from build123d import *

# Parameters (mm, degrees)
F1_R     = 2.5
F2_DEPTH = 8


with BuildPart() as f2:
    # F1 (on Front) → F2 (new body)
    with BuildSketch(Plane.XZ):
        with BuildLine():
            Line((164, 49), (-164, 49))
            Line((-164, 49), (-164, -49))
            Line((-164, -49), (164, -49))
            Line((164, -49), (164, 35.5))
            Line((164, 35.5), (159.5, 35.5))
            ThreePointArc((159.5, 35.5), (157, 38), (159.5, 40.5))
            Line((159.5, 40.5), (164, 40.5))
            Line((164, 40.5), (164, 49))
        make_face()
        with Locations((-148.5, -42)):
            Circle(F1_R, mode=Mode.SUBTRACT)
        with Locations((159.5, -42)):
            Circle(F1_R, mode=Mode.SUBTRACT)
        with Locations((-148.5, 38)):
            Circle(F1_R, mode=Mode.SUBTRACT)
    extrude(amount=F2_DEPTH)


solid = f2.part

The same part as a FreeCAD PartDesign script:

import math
import FreeCAD as App
import Part
import Sketcher

V = App.Vector

doc = App.newDocument("Part")
params = doc.addObject("Spreadsheet::Sheet", "Params")
for row, (alias, value) in enumerate([
    ("sketch1_diameter", "5 mm"),
    ("sketch1_width", "328 mm"),
    ("sketch1_height", "98 mm"),
    ("sketch1_width2", "4.5 mm"),
    ("sketch1_height2", "84.5 mm"),
    ("pad1_length", "8 mm"),
], start=1):
    params.set(f"A{row}", alias)
    params.set(f"B{row}", "=" + value)
    params.setAlias(f"B{row}", alias)

body = doc.addObject("PartDesign::Body", "Body")

# Sketch on XZ plane
sketch1 = doc.addObject("Sketcher::SketchObject", "Sketch")
body.addObject(sketch1)
sketch1.AttachmentSupport = (doc.XZ_Plane, [""])
sketch1.MapMode = "FlatFace"
sketch1.addGeometry(Part.LineSegment(V(164, 49, 0), V(-164, 49, 0)), False)
sketch1.addGeometry(Part.LineSegment(V(-164, 49, 0), V(-164, -49, 0)), False)
sketch1.addGeometry(Part.LineSegment(V(-164, -49, 0), V(164, -49, 0)), False)
sketch1.addGeometry(Part.LineSegment(V(164, -49, 0), V(164, 35.5, 0)), False)
sketch1.addGeometry(Part.LineSegment(V(164, 35.5, 0), V(159.5, 35.5, 0)), False)
sketch1.addGeometry(Part.ArcOfCircle(Part.Circle(V(159.5, 38, 0), V(0, 0, 1), 2.5), math.radians(90), math.radians(270)), False)
sketch1.addGeometry(Part.LineSegment(V(159.5, 40.5, 0), V(164, 40.5, 0)), False)
sketch1.addGeometry(Part.LineSegment(V(164, 40.5, 0), V(164, 49, 0)), False)
sketch1.addGeometry(Part.Circle(V(-148.5, -42, 0), V(0, 0, 1), 2.5), False)
sketch1.addGeometry(Part.Circle(V(159.5, -42, 0), V(0, 0, 1), 2.5), False)
sketch1.addGeometry(Part.Circle(V(-148.5, 38, 0), V(0, 0, 1), 2.5), False)
sketch1.addConstraint(Sketcher.Constraint("Coincident", 0, 2, 1, 1))
sketch1.addConstraint(Sketcher.Constraint("Coincident", 1, 2, 2, 1))
sketch1.addConstraint(Sketcher.Constraint("Coincident", 2, 2, 3, 1))
sketch1.addConstraint(Sketcher.Constraint("Coincident", 3, 2, 4, 1))
sketch1.addConstraint(Sketcher.Constraint("Tangent", 4, 2, 5, 2))
sketch1.addConstraint(Sketcher.Constraint("Tangent", 5, 1, 6, 1))
sketch1.addConstraint(Sketcher.Constraint("Coincident", 6, 2, 7, 1))
sketch1.addConstraint(Sketcher.Constraint("Coincident", 7, 2, 0, 1))
sketch1.addConstraint(Sketcher.Constraint("Horizontal", 0))
sketch1.addConstraint(Sketcher.Constraint("Vertical", 1))
sketch1.addConstraint(Sketcher.Constraint("Horizontal", 2))
sketch1.addConstraint(Sketcher.Constraint("Vertical", 3))
sketch1.addConstraint(Sketcher.Constraint("Horizontal", 4))
sketch1.addConstraint(Sketcher.Constraint("Horizontal", 6))
sketch1.addConstraint(Sketcher.Constraint("Vertical", 7))
sketch1.addConstraint(Sketcher.Constraint("Equal", 5, 8))
sketch1.addConstraint(Sketcher.Constraint("Equal", 8, 9))
sketch1.addConstraint(Sketcher.Constraint("Equal", 9, 10))
sketch1.addConstraint(Sketcher.Constraint("Symmetric", 0, 2, 2, 2, -1, 1))
sketch1.addConstraint(Sketcher.Constraint("Horizontal", 8, 3, 9, 3))
sketch1.addConstraint(Sketcher.Constraint("Horizontal", 5, 3, 10, 3))
sketch1.addConstraint(Sketcher.Constraint("Vertical", 5, 3, 9, 3))
sketch1.addConstraint(Sketcher.Constraint("Vertical", 8, 3, 10, 3))
sketch1.addConstraint(Sketcher.Constraint("Vertical", 3, 2, 6, 2))
sketch1.addConstraint(Sketcher.Constraint("Diameter", 8, 5.0))
sketch1.addConstraint(Sketcher.Constraint("DistanceX", 0, 2, 0, 1, 328.0))
sketch1.addConstraint(Sketcher.Constraint("DistanceY", 1, 2, 1, 1, 98.0))
sketch1.addConstraint(Sketcher.Constraint("DistanceX", 4, 2, 4, 1, 4.5))
sketch1.addConstraint(Sketcher.Constraint("DistanceY", 3, 1, 3, 2, 84.5))
sketch1.addConstraint(Sketcher.Constraint("DistanceY", 8, 3, -1, 1, 42.0))
sketch1.addConstraint(Sketcher.Constraint("DistanceX", 8, 3, 5, 3, 308.0))
sketch1.setExpression("Constraints[24]", "Params.sketch1_diameter")
sketch1.setExpression("Constraints[25]", "Params.sketch1_width")
sketch1.setExpression("Constraints[26]", "Params.sketch1_height")
sketch1.setExpression("Constraints[27]", "Params.sketch1_width2")
sketch1.setExpression("Constraints[28]", "Params.sketch1_height2")
pad1 = doc.addObject("PartDesign::Pad", "Pad")
body.addObject(pad1)
pad1.Profile = sketch1
pad1.setExpression("Length", "Params.pad1_length")

doc.recompute()
